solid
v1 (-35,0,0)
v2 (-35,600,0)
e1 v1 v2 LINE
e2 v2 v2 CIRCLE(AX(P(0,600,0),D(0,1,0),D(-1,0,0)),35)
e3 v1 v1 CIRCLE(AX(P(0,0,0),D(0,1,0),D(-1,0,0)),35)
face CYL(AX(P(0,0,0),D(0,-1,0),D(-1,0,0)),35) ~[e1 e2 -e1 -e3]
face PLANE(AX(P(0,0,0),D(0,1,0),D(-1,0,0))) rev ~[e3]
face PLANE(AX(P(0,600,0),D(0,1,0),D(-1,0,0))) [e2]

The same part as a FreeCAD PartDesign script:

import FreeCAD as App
import Part
import Sketcher
from FreeCAD import Vector
Q = App.Units.Quantity

doc = App.newDocument("Part")
body = doc.addObject("PartDesign::Body", "Body")

# Sketch on XZ plane
sketch1 = doc.addObject("Sketcher::SketchObject", "Sketch")
body.addObject(sketch1)
sketch1.AttachmentSupport = (doc.XZ_Plane, [""])
sketch1.MapMode = "FlatFace"
sketch1.addGeometry(Part.Circle(Vector(0, 0, 0), Vector(0, 0, 1), 35), False)
sketch1.addConstraint(Sketcher.Constraint("Coincident", 0, 3, -1, 1))
sketch1.addConstraint(Sketcher.Constraint("Diameter", 0, Q("70 mm")))
pad1 = doc.addObject("PartDesign::Pad", "Pad")
body.addObject(pad1)
pad1.Profile = sketch1
pad1.Length = 600
pad1.Reversed = True

doc.recompute()
